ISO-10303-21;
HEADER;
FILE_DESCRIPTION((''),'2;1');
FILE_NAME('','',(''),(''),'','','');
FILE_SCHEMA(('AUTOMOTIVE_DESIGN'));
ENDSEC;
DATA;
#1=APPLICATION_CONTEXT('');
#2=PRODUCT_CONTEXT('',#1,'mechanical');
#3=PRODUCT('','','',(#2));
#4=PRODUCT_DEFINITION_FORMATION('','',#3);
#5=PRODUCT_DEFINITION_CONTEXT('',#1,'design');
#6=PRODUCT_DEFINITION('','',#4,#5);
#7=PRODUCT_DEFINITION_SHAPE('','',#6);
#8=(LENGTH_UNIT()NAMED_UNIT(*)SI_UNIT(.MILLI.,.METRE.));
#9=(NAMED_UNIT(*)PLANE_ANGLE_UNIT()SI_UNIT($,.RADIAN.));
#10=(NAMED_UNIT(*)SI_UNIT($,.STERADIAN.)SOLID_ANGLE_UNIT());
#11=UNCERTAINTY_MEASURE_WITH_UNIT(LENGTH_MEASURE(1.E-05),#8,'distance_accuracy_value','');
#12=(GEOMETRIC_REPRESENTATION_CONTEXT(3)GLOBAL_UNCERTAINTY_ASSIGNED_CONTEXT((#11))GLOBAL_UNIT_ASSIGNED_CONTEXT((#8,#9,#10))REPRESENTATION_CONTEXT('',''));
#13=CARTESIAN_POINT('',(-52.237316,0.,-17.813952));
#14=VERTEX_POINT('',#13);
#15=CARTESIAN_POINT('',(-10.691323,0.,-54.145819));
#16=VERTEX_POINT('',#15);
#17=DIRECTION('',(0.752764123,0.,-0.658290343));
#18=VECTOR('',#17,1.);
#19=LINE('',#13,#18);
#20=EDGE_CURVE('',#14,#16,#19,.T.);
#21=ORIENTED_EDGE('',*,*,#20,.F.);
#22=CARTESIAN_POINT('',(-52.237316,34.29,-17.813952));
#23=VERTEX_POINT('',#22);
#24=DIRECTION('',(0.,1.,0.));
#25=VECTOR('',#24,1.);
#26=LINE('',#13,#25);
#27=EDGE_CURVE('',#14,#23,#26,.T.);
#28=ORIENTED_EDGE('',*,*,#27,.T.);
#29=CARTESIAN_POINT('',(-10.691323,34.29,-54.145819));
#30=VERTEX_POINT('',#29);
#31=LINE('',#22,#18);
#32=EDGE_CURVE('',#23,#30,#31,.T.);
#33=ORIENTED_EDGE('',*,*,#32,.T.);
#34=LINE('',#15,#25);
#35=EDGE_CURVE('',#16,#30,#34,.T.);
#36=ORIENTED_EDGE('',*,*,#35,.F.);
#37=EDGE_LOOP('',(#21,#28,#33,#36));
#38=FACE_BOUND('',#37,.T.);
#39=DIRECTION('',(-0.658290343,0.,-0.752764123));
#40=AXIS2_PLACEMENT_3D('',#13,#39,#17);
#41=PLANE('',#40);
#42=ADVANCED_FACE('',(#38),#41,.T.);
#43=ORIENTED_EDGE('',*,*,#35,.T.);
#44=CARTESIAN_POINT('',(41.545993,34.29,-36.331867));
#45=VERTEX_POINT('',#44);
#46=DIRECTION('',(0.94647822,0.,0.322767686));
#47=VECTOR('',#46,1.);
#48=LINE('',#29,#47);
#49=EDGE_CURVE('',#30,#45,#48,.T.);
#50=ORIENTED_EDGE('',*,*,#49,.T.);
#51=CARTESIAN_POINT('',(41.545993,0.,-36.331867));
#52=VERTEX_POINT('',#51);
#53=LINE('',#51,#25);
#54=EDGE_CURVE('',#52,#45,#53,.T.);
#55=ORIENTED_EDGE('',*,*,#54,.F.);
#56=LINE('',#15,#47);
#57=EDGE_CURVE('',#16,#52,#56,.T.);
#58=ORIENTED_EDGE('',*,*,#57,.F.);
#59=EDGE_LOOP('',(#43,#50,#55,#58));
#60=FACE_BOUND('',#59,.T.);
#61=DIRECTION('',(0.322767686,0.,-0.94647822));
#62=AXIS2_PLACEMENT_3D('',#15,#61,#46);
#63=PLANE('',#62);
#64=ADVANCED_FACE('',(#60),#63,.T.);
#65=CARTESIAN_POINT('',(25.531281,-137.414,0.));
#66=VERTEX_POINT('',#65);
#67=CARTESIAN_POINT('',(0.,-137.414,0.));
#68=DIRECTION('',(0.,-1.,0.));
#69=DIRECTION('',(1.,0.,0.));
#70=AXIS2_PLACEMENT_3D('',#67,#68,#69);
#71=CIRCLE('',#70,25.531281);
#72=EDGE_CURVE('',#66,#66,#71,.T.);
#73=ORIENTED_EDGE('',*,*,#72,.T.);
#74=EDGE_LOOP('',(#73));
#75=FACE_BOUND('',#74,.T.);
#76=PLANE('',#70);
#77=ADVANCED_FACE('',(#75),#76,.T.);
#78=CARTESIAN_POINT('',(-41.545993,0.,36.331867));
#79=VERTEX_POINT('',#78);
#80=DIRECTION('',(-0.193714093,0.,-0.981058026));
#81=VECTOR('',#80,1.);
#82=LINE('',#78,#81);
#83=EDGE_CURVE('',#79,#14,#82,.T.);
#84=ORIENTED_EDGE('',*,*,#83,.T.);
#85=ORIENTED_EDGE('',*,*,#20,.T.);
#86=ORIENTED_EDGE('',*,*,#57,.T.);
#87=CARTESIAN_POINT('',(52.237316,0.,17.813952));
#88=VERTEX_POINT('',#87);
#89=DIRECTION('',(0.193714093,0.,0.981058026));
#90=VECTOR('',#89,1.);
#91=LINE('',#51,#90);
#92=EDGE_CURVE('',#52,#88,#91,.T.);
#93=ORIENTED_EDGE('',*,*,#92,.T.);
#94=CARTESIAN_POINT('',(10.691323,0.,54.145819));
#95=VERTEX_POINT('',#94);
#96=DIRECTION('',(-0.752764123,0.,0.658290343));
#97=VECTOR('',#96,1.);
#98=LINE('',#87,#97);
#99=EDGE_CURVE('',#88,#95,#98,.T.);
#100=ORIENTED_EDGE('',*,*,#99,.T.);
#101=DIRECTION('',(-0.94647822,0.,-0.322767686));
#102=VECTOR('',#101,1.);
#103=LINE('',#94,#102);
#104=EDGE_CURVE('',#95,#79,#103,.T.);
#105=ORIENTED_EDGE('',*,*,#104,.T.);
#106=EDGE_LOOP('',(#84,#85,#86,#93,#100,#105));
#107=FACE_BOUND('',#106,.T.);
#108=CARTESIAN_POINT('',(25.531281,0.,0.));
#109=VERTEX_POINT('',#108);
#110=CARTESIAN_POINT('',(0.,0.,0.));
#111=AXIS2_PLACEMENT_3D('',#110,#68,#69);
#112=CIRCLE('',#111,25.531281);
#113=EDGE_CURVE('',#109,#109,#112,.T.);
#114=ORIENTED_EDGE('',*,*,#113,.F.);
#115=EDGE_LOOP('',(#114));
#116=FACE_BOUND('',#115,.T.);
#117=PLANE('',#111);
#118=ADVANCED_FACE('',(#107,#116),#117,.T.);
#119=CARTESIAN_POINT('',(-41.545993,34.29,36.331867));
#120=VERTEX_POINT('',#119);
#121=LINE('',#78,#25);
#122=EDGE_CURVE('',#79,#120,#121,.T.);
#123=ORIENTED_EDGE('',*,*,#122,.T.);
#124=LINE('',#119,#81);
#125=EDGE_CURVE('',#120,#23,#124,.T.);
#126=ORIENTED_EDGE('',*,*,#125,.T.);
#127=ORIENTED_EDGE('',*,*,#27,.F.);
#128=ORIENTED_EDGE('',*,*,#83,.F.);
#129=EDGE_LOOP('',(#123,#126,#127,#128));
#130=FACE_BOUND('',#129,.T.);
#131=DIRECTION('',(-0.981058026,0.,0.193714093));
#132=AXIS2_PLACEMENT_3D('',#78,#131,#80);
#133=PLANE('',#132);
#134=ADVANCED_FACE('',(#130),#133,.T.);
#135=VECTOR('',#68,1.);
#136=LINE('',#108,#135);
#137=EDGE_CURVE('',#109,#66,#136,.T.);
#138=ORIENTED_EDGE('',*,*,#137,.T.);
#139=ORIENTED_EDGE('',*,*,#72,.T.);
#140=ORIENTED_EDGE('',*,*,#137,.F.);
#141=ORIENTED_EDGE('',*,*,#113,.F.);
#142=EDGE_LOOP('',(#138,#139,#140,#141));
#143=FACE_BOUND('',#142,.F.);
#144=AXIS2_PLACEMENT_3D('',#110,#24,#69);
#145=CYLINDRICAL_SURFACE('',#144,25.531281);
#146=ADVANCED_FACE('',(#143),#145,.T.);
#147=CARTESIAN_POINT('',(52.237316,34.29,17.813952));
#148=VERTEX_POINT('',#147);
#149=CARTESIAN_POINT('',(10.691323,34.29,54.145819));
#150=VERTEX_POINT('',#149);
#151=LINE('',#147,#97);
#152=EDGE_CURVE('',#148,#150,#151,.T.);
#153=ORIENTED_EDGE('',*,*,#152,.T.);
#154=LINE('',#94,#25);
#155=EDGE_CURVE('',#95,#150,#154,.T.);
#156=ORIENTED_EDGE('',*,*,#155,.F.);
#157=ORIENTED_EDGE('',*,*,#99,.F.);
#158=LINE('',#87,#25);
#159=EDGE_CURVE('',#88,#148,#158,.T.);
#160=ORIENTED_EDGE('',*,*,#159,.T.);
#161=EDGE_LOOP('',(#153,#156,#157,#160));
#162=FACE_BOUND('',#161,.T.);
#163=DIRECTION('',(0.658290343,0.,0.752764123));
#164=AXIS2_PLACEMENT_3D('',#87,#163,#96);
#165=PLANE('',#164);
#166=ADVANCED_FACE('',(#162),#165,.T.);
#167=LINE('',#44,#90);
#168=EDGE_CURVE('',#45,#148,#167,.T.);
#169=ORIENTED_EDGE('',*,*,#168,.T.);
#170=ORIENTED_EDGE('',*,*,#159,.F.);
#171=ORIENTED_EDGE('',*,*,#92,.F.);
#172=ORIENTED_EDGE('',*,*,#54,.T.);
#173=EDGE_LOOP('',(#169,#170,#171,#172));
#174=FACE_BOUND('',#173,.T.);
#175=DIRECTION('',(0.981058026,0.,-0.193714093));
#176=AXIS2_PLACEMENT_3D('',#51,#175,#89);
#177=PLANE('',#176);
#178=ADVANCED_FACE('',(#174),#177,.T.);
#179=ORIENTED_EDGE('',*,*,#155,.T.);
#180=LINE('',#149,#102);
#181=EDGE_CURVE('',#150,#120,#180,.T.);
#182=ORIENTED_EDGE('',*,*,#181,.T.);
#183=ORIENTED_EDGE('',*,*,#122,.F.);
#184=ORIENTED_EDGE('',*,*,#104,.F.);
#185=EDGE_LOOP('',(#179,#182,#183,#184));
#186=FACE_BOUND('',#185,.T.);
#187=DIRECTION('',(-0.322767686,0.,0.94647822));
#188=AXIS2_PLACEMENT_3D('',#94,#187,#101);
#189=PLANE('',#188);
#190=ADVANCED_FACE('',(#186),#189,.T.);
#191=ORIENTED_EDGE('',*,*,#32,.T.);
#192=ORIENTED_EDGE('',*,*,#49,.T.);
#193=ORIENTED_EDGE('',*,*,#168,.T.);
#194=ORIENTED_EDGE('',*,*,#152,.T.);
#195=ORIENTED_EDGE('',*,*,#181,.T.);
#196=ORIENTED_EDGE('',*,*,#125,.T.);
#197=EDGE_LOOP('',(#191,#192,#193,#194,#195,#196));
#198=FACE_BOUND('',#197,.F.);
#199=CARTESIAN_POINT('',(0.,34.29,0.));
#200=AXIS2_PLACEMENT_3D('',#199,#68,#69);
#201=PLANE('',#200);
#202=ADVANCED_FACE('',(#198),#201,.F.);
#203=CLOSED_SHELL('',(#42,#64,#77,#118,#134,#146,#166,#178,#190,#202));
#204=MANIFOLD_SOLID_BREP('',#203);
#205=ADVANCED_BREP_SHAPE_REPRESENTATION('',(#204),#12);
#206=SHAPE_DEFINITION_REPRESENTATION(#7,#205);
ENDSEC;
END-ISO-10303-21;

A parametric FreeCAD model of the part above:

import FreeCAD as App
import Part
import Sketcher
Q = App.Units.Quantity

doc = App.newDocument("Part")
body = doc.addObject("PartDesign::Body", "Body")

# Sketch on XZ plane
sketch1 = doc.addObject("Sketcher::SketchObject", "Sketch")
body.addObject(sketch1)
sketch1.AttachmentSupport = (doc.XZ_Plane, [""])
sketch1.MapMode = "FlatFace"
sketch1.addGeometry(Part.LineSegment(App.Vector(52, 18, 0), App.Vector(11, 54, 0)), False)
sketch1.addGeometry(Part.LineSegment(App.Vector(11, 54, 0), App.Vector(-42, 36, 0)), False)
sketch1.addGeometry(Part.LineSegment(App.Vector(-42, 36, 0), App.Vector(-52, -18, 0)), False)
sketch1.addGeometry(Part.LineSegment(App.Vector(-52, -18, 0), App.Vector(-11, -54, 0)), False)
sketch1.addGeometry(Part.LineSegment(App.Vector(-11, -54, 0), App.Vector(42, -36, 0)), False)
sketch1.addGeometry(Part.LineSegment(App.Vector(42, -36, 0), App.Vector(52, 18, 0)), False)
sketch1.addConstraint(Sketcher.Constraint("Coincident", 0, 2, 1, 1))
sketch1.addConstraint(Sketcher.Constraint("Coincident", 1, 2, 2, 1))
sketch1.addConstraint(Sketcher.Constraint("Coincident", 2, 2, 3, 1))
sketch1.addConstraint(Sketcher.Constraint("Coincident", 3, 2, 4, 1))
sketch1.addConstraint(Sketcher.Constraint("Coincident", 4, 2, 5, 1))
sketch1.addConstraint(Sketcher.Constraint("Coincident", 5, 2, 0, 1))
sketch1.addConstraint(Sketcher.Constraint("Symmetric", 0, 2, 3, 2, -1, 1))
sketch1.addConstraint(Sketcher.Constraint("Symmetric", 1, 2, 4, 2, -1, 1))
sketch1.addConstraint(Sketcher.Constraint("Symmetric", 2, 2, 5, 2, -1, 1))
sketch1.addConstraint(Sketcher.Constraint("Equal", 0, 1))
sketch1.addConstraint(Sketcher.Constraint("Equal", 1, 2))
sketch1.addConstraint(Sketcher.Constraint("Distance", 0, 55.19125))
sketch1.addConstraint(Sketcher.Constraint("DistanceY", -1, 1, 0, 2, 54.145819))
sketch1.addConstraint(Sketcher.Constraint("DistanceY", 2, 2, 1, 2, 54.145819))
sketch1.addConstraint(Sketcher.Constraint("DistanceX", 2, 2, 0, 2, 62.928639))
pad1 = doc.addObject("PartDesign::Pad", "Pad")
body.addObject(pad1)
pad1.Profile = sketch1
pad1.Length = Q("1.35 in")
pad1.Reversed = True

# Sketch on XZ plane
sketch2 = doc.addObject("Sketcher::SketchObject", "Sketch001")
body.addObject(sketch2)
sketch2.AttachmentSupport = (doc.XZ_Plane, [""])
sketch2.MapMode = "FlatFace"
sketch2.addGeometry(Part.Circle(App.Vector(0, 0, 0), App.Vector(0, 0, 1), 26), False)
sketch2.addConstraint(Sketcher.Constraint("Coincident", 0, 3, -1, 1))
sketch2.addConstraint(Sketcher.Constraint("Diameter", 0, 51.062562))
pad2 = doc.addObject("PartDesign::Pad", "Pad001")
body.addObject(pad2)
pad2.Profile = sketch2
pad2.Length = Q("5.41 in")

# Sketch on XZ plane
sketch3 = doc.addObject("Sketcher::SketchObject", "Sketch002")
body.addObject(sketch3)
sketch3.AttachmentSupport = (doc.XZ_Plane, [""])
sketch3.MapMode = "FlatFace"
sketch3.AttachmentOffset = App.Placement(App.Vector(0, 0, 5.41 * 25.4), App.Rotation())
sketch3.addGeometry(Part.Circle(App.Vector(0, 0, 0), App.Vector(0, 0, 1), 12), False)
sketch3.addConstraint(Sketcher.Constraint("Coincident", 0, 3, -1, 1))
sketch3.addConstraint(Sketcher.Constraint("Diameter", 0, 23.42402))
pad3 = doc.addObject("PartDesign::Pad", "Pad002")
body.addObject(pad3)
pad3.Profile = sketch3
pad3.Length = Q("6.63 in")
pad3.Reversed = True

doc.recompute()
